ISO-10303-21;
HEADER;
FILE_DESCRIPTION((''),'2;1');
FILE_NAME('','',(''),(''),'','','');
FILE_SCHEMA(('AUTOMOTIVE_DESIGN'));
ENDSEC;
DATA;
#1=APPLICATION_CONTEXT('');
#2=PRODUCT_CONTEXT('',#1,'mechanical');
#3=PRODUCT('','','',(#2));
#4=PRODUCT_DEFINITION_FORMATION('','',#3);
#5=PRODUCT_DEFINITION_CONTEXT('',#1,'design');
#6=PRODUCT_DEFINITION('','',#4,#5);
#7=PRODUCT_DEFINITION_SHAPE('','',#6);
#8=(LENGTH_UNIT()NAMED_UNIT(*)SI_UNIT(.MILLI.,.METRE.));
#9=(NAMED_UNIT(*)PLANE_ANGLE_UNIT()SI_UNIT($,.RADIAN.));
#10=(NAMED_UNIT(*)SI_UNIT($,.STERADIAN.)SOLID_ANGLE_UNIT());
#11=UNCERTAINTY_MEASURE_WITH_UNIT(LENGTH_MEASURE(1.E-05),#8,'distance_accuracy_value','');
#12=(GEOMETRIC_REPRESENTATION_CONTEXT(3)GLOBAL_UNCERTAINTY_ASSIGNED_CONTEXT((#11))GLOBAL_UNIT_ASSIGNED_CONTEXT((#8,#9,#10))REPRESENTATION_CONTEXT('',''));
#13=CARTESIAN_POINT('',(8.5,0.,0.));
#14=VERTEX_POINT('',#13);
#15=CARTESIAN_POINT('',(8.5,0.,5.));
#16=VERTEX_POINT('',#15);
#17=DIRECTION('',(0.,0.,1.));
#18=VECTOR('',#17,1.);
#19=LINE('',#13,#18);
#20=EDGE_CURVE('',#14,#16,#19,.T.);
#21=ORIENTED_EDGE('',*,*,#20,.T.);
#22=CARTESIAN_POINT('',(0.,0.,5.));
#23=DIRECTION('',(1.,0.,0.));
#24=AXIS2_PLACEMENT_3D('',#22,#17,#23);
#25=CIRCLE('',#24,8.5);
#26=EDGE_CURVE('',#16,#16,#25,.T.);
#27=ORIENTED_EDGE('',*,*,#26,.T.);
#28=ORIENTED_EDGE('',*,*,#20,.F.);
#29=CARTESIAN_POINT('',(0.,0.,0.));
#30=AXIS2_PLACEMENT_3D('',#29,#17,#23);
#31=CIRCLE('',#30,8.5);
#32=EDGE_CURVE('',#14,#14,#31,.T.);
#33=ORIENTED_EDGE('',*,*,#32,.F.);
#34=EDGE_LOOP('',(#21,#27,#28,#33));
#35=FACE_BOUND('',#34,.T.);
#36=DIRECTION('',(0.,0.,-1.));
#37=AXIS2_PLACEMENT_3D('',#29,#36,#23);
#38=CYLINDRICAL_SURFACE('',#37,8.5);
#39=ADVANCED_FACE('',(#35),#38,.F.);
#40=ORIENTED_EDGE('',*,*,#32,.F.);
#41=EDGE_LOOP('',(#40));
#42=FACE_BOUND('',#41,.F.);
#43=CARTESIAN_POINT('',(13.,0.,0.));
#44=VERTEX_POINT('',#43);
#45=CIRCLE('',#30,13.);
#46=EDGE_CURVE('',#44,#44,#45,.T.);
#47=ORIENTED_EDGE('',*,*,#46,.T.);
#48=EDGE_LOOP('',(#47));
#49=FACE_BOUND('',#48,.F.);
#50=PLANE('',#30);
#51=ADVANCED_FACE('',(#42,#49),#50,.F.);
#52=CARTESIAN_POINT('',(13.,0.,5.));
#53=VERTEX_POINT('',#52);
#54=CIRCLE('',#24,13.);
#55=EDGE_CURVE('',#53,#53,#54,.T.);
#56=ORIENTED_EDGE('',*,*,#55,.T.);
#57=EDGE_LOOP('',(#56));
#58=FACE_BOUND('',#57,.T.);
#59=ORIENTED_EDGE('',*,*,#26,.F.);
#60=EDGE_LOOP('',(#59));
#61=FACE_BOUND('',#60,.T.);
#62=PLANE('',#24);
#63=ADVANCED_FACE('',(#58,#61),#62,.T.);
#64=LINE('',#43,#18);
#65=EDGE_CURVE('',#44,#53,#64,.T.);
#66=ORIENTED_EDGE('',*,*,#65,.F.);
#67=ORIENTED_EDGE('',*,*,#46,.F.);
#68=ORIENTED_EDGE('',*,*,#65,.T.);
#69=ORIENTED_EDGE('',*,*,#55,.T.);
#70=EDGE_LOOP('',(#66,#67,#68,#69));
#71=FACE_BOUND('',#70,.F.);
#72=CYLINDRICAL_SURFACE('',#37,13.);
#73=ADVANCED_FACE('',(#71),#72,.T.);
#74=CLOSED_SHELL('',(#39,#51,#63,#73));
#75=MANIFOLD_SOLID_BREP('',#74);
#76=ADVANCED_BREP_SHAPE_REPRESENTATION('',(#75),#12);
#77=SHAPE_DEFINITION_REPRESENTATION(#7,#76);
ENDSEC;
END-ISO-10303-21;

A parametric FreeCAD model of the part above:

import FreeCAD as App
import Part
import Sketcher
from FreeCAD import Vector
Q = App.Units.Quantity

doc = App.newDocument("Part")
body = doc.addObject("PartDesign::Body", "Body")

# Sketch on XY plane
sketch1 = body.newObject("Sketcher::SketchObject", "Sketch")
sketch1.AttachmentSupport = (doc.getObject("XY_Plane"), [""])
sketch1.MapMode = "FlatFace"
sketch1.addGeometry([
    Part.Circle(Vector(0, 0, 0), Vector(0, 0, 1), 13),
    Part.Circle(Vector(0, 0, 0), Vector(0, 0, 1), 8),
], False)
sketch1.addConstraint([
    Sketcher.Constraint("Coincident", 0, 3, -1, 1),
    Sketcher.Constraint("Coincident", 1, 3, -1, 1),
    Sketcher.Constraint("Diameter", 0, Q("26 mm")),
    Sketcher.Constraint("Diameter", 1, Q("17 mm")),
])
pad1 = body.newObject("PartDesign::Pad", "Pad")
pad1.Profile = sketch1
pad1.Length = 5

doc.recompute()
